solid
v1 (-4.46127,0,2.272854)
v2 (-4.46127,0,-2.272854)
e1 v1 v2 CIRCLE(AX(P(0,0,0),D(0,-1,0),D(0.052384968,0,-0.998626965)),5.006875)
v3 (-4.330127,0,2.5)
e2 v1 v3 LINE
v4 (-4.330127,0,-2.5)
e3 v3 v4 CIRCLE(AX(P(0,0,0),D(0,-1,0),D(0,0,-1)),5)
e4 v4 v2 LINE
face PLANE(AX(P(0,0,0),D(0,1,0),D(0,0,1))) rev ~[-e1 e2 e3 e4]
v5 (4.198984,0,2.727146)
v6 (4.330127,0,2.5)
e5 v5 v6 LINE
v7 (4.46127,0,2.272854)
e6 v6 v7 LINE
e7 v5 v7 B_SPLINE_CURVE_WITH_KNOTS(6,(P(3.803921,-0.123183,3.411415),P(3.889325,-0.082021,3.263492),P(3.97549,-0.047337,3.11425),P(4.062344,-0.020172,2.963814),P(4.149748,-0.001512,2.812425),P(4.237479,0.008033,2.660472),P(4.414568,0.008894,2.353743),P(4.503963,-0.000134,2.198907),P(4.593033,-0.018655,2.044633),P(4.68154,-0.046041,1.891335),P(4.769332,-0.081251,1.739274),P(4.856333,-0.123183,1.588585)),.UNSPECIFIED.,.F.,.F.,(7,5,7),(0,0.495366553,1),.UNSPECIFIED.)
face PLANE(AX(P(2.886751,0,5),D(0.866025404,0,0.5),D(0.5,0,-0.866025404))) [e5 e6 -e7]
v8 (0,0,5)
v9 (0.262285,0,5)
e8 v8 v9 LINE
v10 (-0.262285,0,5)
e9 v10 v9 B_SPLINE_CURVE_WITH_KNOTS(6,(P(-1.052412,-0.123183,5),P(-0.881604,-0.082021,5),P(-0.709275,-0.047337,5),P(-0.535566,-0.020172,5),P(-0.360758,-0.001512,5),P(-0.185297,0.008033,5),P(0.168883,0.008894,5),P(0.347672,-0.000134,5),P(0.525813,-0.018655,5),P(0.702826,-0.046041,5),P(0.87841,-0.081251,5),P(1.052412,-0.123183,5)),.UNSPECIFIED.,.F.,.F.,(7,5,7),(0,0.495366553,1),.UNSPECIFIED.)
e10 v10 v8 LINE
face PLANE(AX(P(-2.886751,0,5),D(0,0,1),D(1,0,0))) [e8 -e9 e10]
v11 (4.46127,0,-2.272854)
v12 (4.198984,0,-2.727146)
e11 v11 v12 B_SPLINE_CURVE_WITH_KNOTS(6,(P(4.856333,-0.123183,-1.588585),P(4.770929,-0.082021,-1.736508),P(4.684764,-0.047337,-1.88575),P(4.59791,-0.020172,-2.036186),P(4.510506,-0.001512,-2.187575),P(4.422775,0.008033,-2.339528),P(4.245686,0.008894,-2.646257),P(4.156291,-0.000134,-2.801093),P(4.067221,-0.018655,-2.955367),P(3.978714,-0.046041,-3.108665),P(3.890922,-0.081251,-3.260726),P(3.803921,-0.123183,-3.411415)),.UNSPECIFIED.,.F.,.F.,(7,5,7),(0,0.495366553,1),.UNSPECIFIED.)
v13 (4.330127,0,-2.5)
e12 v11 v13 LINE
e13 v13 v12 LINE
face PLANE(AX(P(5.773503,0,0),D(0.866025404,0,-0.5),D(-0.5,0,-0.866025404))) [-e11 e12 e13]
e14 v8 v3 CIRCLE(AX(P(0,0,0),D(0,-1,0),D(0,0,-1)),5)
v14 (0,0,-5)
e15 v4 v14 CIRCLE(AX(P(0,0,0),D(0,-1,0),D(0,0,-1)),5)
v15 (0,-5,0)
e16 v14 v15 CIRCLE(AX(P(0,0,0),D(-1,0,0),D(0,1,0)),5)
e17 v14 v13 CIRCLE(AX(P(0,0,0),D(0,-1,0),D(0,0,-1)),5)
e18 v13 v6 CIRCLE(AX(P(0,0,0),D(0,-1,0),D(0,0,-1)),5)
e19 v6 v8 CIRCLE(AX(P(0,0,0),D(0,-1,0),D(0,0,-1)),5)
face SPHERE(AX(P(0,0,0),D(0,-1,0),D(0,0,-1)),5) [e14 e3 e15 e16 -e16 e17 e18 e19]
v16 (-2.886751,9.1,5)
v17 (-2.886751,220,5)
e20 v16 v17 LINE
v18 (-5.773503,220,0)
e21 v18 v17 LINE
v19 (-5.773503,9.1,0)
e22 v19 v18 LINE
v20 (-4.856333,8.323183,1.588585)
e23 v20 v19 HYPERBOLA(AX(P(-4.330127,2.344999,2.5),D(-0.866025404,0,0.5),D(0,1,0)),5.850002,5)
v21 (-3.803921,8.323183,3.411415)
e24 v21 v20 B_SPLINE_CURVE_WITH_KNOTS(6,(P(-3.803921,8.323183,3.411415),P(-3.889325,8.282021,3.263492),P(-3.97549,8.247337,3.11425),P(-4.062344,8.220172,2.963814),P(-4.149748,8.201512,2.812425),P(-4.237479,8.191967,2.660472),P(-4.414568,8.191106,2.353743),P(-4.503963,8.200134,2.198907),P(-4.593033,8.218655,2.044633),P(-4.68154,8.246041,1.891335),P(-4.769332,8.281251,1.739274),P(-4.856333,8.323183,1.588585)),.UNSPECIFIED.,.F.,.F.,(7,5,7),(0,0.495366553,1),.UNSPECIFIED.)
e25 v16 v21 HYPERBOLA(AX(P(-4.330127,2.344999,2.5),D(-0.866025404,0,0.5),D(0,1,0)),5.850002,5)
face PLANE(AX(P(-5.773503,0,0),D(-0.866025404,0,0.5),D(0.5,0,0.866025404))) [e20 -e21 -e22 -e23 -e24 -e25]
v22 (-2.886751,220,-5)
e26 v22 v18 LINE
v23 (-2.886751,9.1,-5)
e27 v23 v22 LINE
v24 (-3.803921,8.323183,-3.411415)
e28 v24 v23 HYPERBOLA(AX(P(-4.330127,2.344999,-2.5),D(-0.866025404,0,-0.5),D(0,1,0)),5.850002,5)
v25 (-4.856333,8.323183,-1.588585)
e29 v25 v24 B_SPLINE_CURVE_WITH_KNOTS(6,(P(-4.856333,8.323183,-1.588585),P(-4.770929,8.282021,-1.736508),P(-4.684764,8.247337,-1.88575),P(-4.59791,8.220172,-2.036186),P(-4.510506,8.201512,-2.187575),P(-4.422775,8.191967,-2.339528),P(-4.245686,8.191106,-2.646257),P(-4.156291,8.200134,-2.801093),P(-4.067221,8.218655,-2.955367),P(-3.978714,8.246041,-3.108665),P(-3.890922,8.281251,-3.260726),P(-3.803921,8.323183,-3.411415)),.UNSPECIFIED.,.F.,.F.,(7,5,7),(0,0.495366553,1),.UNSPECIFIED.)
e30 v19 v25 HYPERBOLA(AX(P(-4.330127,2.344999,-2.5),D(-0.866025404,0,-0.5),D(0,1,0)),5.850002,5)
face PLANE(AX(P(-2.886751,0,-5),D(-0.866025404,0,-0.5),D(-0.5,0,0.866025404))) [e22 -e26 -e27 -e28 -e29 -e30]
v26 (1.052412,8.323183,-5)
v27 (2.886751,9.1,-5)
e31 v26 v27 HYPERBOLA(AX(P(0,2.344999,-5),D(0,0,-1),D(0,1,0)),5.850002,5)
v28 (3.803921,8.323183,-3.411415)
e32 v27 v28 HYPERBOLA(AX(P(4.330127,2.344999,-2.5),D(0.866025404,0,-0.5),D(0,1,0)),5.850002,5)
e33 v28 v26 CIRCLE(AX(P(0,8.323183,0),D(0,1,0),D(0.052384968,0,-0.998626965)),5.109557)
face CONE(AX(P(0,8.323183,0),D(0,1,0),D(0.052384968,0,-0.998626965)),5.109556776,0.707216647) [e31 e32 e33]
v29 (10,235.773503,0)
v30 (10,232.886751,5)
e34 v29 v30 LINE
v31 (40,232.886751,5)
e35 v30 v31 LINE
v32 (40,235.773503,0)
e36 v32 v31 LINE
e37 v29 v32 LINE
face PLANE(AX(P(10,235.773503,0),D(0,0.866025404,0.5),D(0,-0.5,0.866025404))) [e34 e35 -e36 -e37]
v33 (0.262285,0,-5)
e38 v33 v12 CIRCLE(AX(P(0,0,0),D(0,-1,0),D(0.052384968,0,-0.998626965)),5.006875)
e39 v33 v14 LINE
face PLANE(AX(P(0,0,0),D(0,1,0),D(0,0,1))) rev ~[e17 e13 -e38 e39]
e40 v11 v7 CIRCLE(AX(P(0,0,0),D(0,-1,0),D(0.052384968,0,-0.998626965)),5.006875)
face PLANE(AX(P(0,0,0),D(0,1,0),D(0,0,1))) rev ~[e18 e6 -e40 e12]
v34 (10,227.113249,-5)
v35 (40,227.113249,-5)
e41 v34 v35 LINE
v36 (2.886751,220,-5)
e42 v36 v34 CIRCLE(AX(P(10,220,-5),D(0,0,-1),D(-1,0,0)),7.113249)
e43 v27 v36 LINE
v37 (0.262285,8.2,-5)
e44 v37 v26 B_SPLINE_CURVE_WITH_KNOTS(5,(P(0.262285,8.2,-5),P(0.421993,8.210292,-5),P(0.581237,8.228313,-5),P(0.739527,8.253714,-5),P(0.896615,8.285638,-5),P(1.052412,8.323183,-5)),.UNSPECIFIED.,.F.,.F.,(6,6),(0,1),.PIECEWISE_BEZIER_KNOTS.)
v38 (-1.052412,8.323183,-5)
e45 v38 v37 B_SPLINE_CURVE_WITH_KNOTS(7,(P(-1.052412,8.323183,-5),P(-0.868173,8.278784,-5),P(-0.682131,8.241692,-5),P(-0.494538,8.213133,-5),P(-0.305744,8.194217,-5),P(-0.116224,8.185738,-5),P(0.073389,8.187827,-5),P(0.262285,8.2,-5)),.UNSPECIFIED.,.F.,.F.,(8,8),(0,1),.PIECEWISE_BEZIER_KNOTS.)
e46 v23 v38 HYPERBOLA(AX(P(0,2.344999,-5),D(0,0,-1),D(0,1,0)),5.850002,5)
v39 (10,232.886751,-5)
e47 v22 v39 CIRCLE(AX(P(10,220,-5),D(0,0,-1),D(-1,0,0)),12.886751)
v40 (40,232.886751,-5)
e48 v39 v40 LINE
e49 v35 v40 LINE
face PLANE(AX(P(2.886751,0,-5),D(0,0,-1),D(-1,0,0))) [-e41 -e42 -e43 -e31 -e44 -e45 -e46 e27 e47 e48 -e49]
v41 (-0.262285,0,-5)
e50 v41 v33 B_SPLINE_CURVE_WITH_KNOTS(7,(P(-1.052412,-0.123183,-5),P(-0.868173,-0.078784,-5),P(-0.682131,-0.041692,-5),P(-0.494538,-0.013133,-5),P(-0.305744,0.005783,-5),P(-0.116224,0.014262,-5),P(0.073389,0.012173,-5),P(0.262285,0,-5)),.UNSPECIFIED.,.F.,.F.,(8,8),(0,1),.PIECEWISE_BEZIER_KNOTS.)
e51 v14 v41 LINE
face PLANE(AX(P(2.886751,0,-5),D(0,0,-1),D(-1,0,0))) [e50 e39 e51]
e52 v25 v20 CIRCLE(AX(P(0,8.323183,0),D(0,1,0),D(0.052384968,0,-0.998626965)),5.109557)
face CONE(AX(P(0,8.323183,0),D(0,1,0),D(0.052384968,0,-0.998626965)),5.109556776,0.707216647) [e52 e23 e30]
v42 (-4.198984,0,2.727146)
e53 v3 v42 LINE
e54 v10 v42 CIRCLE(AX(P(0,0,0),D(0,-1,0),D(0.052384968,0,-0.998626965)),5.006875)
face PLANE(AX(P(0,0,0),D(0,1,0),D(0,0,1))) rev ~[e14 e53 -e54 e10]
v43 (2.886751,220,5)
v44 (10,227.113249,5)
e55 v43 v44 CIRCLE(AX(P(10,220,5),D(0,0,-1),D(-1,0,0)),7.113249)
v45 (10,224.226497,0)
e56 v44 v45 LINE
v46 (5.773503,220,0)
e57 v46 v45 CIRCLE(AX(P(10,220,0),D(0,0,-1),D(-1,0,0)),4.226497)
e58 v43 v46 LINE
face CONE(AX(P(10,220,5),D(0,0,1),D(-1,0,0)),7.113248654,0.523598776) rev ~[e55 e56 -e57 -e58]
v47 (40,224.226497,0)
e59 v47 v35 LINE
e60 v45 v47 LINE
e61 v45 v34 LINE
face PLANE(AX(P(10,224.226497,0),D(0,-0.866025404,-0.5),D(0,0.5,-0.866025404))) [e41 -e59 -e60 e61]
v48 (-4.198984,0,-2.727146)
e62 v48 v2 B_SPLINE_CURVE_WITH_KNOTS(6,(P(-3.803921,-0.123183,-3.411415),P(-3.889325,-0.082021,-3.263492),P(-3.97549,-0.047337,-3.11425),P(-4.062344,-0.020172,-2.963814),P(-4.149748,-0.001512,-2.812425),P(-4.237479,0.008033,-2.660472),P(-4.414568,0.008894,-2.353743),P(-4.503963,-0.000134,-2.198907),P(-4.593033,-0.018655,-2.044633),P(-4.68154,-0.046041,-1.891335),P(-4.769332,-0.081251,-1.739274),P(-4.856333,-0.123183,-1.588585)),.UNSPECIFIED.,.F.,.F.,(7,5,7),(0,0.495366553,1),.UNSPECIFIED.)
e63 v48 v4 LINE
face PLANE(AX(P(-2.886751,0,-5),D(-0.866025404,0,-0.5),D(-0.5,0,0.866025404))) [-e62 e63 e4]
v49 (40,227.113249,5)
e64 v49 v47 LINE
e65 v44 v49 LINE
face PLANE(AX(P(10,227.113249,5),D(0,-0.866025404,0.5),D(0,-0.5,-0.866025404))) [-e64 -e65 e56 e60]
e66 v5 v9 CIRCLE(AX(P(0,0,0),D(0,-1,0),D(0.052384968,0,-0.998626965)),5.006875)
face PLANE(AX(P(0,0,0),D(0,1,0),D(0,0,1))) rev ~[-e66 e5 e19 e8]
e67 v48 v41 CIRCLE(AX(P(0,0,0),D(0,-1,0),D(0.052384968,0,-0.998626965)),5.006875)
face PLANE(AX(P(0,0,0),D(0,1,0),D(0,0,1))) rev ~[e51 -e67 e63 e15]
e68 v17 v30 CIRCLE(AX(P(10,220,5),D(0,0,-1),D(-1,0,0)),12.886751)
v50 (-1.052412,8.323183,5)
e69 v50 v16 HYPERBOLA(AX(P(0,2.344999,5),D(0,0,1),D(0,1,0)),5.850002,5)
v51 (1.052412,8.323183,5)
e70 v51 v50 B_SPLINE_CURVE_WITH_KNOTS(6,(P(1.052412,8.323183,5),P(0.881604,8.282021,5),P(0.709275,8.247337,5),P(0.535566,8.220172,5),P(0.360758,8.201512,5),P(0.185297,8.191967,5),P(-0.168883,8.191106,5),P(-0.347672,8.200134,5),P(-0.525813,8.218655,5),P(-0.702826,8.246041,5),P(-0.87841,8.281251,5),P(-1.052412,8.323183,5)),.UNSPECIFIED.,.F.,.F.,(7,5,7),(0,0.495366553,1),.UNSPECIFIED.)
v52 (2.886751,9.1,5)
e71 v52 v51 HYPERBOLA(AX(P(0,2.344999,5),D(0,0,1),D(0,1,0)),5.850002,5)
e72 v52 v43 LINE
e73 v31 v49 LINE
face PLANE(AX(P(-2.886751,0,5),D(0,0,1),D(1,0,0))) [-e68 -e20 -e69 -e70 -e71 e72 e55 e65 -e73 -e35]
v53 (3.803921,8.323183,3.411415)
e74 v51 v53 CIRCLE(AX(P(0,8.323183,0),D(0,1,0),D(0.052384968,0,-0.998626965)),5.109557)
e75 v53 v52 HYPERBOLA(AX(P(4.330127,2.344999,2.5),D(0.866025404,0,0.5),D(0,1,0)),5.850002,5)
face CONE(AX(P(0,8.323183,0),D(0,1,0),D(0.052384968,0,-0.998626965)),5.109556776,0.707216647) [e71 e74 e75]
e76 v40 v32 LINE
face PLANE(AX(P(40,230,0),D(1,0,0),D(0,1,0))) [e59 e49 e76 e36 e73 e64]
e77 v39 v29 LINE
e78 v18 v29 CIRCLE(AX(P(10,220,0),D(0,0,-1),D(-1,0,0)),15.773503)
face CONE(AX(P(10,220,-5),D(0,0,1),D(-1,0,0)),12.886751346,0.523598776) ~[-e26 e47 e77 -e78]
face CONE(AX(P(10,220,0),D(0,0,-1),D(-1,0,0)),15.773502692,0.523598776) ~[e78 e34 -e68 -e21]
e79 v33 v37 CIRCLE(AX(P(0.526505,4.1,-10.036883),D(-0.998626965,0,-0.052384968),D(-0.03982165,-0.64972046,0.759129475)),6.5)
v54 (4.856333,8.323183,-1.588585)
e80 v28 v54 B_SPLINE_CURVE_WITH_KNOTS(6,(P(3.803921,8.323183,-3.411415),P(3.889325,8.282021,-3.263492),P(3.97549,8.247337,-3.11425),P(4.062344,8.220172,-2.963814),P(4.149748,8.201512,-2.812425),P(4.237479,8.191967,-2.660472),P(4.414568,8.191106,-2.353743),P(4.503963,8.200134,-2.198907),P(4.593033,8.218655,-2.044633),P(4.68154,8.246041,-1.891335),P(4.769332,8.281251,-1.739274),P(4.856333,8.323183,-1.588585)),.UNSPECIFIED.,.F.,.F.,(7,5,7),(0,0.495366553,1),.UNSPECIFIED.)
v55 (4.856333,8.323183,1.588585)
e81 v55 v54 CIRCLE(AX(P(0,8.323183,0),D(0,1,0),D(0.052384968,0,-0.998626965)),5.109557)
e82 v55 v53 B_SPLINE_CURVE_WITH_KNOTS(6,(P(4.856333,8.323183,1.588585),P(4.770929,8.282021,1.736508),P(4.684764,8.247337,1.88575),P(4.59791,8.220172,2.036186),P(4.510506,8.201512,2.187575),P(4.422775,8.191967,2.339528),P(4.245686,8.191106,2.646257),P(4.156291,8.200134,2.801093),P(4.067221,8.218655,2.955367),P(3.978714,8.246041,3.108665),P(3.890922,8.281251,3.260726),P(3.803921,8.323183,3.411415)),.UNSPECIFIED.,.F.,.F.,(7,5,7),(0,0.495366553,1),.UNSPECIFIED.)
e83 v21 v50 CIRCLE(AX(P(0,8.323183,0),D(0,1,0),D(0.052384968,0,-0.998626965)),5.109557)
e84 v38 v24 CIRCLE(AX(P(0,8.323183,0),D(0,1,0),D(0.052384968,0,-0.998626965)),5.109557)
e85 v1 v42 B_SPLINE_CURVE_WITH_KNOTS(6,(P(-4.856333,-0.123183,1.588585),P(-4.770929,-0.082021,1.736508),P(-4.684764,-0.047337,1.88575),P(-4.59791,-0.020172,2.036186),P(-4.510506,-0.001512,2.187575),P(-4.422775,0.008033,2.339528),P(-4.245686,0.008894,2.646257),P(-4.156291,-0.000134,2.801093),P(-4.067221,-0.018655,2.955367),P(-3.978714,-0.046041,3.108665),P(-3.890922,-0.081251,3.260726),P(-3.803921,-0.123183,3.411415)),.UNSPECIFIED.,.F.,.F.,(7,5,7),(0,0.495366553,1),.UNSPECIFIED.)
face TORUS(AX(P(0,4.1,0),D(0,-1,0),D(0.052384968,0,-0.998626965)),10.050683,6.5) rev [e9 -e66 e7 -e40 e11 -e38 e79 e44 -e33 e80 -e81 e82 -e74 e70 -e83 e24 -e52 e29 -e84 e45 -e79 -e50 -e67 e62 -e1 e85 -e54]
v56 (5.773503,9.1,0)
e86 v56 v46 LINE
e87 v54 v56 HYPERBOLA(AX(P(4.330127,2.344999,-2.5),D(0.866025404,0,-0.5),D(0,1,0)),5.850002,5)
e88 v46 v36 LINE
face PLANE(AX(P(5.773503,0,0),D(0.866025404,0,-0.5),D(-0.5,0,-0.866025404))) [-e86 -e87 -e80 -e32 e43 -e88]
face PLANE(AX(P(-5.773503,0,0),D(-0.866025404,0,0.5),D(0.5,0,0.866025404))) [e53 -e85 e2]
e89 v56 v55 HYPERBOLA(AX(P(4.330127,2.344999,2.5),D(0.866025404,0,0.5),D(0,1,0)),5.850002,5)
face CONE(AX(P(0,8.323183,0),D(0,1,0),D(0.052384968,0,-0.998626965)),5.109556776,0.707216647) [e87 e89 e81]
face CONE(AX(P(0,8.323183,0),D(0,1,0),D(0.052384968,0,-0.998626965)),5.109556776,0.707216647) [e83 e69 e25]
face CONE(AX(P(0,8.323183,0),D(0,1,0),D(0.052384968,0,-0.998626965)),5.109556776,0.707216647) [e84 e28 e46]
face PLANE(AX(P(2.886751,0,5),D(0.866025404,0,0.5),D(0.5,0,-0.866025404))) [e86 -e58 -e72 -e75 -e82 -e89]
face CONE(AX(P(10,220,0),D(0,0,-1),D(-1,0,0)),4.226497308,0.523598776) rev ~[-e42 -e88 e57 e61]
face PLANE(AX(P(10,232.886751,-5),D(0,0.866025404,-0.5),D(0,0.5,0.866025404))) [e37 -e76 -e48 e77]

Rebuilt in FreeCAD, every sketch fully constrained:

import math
import FreeCAD as App
import Part
import Sketcher
Q = App.Units.Quantity

doc = App.newDocument("Part")
body = doc.addObject("PartDesign::Body", "Body")

# Sketch on XZ plane
sketch1 = doc.addObject("Sketcher::SketchObject", "Sketch")
body.addObject(sketch1)
sketch1.AttachmentSupport = (doc.XZ_Plane, [""])
sketch1.MapMode = "FlatFace"
sketch1.addGeometry([
    Part.LineSegment(App.Vector(-3, -5, 0), App.Vector(-6, 0, 0)),  # 0
    Part.LineSegment(App.Vector(-6, 0, 0), App.Vector(-3, 5, 0)),  # 1
    Part.LineSegment(App.Vector(-3, 5, 0), App.Vector(3, 5, 0)),  # 2
    Part.LineSegment(App.Vector(3, 5, 0), App.Vector(6, 0, 0)),  # 3
    Part.LineSegment(App.Vector(6, 0, 0), App.Vector(3, -5, 0)),  # 4
    Part.LineSegment(App.Vector(3, -5, 0), App.Vector(-3, -5, 0)),  # 5
], False)
sketch1.addConstraint([
    Sketcher.Constraint("Coincident", 0, 2, 1, 1),
    Sketcher.Constraint("Coincident", 1, 2, 2, 1),
    Sketcher.Constraint("Coincident", 2, 2, 3, 1),
    Sketcher.Constraint("Coincident", 3, 2, 4, 1),
    Sketcher.Constraint("Coincident", 4, 2, 5, 1),
    Sketcher.Constraint("Coincident", 5, 2, 0, 1),
    Sketcher.Constraint("Horizontal", 2),
    Sketcher.Constraint("Horizontal", 5),
    Sketcher.Constraint("Symmetric", 0, 2, 3, 2, -1, 1),
    Sketcher.Constraint("Symmetric", 1, 2, 4, 2, -1, 1),
    Sketcher.Constraint("PointOnObject", 0, 2, -1),
    Sketcher.Constraint("Parallel", 0, 3),
    Sketcher.Constraint("Vertical", 2, 2, 4, 2),
    Sketcher.Constraint("Angle", 0, Q("120 deg")),
    Sketcher.Constraint("DistanceY", -1, 1, 1, 2, 5.0),
    Sketcher.Constraint("DistanceX", 2, 1, 2, 2, 5.773503),
])

# Sketch on XY plane
sketch2 = doc.addObject("Sketcher::SketchObject", "Sketch001")
body.addObject(sketch2)
sketch2.AttachmentSupport = (doc.XY_Plane, [""])
sketch2.MapMode = "FlatFace"
sketch2.addGeometry([
    Part.LineSegment(App.Vector(0, 0, 0), App.Vector(0, 220, 0)),
    Part.ArcOfCircle(Part.Circle(App.Vector(10, 220, 0), App.Vector(0, 0, 1), 10), math.radians(90), math.radians(180)),
    Part.LineSegment(App.Vector(10, 230, 0), App.Vector(40, 230, 0)),
], False)
sketch2.addConstraint([
    Sketcher.Constraint("Tangent", 0, 2, 1, 2),
    Sketcher.Constraint("Tangent", 1, 1, 2, 1),
    Sketcher.Constraint("Vertical", 0),
    Sketcher.Constraint("Horizontal", 2),
    Sketcher.Constraint("Coincident", 0, 1, -1, 1),
    Sketcher.Constraint("Radius", 1, 10.0),
    Sketcher.Constraint("DistanceX", 2, 1, 2, 2, 30.0),
    Sketcher.Constraint("DistanceY", 0, 1, 0, 2, 220.0),
])
doc.recompute()

additivepipe = doc.addObject("PartDesign::AdditivePipe", "AdditivePipe")
body.addObject(additivepipe)
additivepipe.Profile = sketch1
additivepipe.Spine = (sketch2, ["Edge1", "Edge2", "Edge3"])

# Sketch on YZ plane
sketch3 = doc.addObject("Sketcher::SketchObject", "Sketch002")
body.addObject(sketch3)
sketch3.AttachmentSupport = (doc.YZ_Plane, [""])
sketch3.MapMode = "FlatFace"
sketch3.addGeometry([
    Part.LineSegment(App.Vector(5, 0, 0), App.Vector(-5, 0, 0)),
    Part.ArcOfCircle(Part.Circle(App.Vector(0, 0, 0), App.Vector(0, 0, 1), 5), math.radians(180), math.radians(360)),
], False)
sketch3.addConstraint([
    Sketcher.Constraint("Coincident", 0, 1, 1, 2),
    Sketcher.Constraint("Coincident", 1, 1, 0, 2),
    Sketcher.Constraint("Horizontal", 0),
    Sketcher.Constraint("Coincident", 1, 3, -1, 1),
    Sketcher.Constraint("PointOnObject", 0, 1, -1),
    Sketcher.Constraint("Radius", 1, 5.0),
])
revolution = doc.addObject("PartDesign::Revolution", "Revolution")
body.addObject(revolution)
revolution.Profile = sketch3
revolution.ReferenceAxis = (sketch3, ["H_Axis"])
revolution.Angle = 360

# Sketch on XY plane
sketch4 = doc.addObject("Sketcher::SketchObject", "Sketch003")
body.addObject(sketch4)
sketch4.AttachmentSupport = (doc.XY_Plane, [""])
sketch4.MapMode = "FlatFace"
sketch4.addGeometry([
    Part.LineSegment(App.Vector(-5.8, -0.9, 0), App.Vector(-5.1, -0.1, 0)),
    Part.ArcOfCircle(Part.Circle(App.Vector(-10.1, 4.1, 0), App.Vector(0, 0, 1), 6.5), math.radians(-41), math.radians(41)),
    Part.LineSegment(App.Vector(-5.1, 8.3, 0), App.Vector(-5.8, 9.1, 0)),
    Part.LineSegment(App.Vector(-5.8, 9.1, 0), App.Vector(-5.8, -0.9, 0)),
], False)
sketch4.addConstraint([
    Sketcher.Constraint("Tangent", 0, 2, 1, 1),
    Sketcher.Constraint("Tangent", 1, 2, 2, 1),
    Sketcher.Constraint("Coincident", 2, 2, 3, 1),
    Sketcher.Constraint("Coincident", 3, 2, 0, 1),
    Sketcher.Constraint("Vertical", 3),
    Sketcher.Constraint("Vertical", 0, 2, 1, 2),
    Sketcher.Constraint("Radius", 1, 6.5),
    Sketcher.Constraint("DistanceY", 3, 2, 3, 1, 10.0),
    Sketcher.Constraint("DistanceY", -1, 1, 1, 3, 4.1),
    Sketcher.Constraint("DistanceX", 1, 3, 2, 2, 4.27718),
    Sketcher.Constraint("DistanceX", 1, 3, -1, 1, 10.050683),
])
groove = doc.addObject("PartDesign::Groove", "Groove")
body.addObject(groove)
groove.Profile = sketch4
groove.ReferenceAxis = (sketch4, ["V_Axis"])
groove.Angle = 360

doc.recompute()
